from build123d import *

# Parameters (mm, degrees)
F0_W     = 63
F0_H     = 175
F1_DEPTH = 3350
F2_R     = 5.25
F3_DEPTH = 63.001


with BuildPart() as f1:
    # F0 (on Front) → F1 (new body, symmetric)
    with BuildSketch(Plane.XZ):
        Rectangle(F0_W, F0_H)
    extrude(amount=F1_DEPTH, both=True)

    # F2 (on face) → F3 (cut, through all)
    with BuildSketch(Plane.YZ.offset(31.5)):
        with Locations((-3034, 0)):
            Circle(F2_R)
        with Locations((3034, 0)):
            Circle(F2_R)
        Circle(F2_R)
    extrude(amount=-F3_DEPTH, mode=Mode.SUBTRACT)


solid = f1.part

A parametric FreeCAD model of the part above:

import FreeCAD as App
import Part
import Sketcher

V = App.Vector
Q = App.Units.Quantity


def add_polygon(sketch, points):
    """Adds a closed chain of lines whose ends are joined by coincident constraints."""
    first, n = sketch.GeometryCount, len(points)
    for a, b in zip(points, points[1:] + points[:1]):
        sketch.addGeometry(Part.LineSegment(App.Vector(*a, 0), App.Vector(*b, 0)), False)
    for i in range(n):
        sketch.addConstraint(Sketcher.Constraint("Coincident", first + i, 2, first + (i + 1) % n, 1))

doc = App.newDocument("Part")
body = doc.addObject("PartDesign::Body", "Body")

sketch1 = body.newObject("Sketcher::SketchObject", "Sketch")
sketch1.AttachmentSupport = (doc.getObject("XZ_Plane"), [""])
sketch1.MapMode = "FlatFace"
add_polygon(sketch1, [(-32, 88), (-32, -88), (32, -88), (32, 88)])
sketch1.addConstraint(Sketcher.Constraint("Vertical", 0))
sketch1.addConstraint(Sketcher.Constraint("Horizontal", 1))
sketch1.addConstraint(Sketcher.Constraint("Vertical", 2))
sketch1.addConstraint(Sketcher.Constraint("Horizontal", 3))
sketch1.addConstraint(Sketcher.Constraint("Symmetric", 0, 2, 2, 2, -1, 1))
sketch1.addConstraint(Sketcher.Constraint("DistanceX", 1, 1, 1, 2, Q("63 mm")))
sketch1.addConstraint(Sketcher.Constraint("DistanceY", 0, 2, 0, 1, Q("175 mm")))
pad1 = body.newObject("PartDesign::Pad", "Pad")
pad1.Profile = sketch1
pad1.Length = 6700
pad1.Midplane = True

sketch2 = body.newObject("Sketcher::SketchObject", "Sketch001")
sketch2.AttachmentSupport = (doc.getObject("YZ_Plane"), [""])
sketch2.MapMode = "FlatFace"
sketch2.AttachmentOffset = App.Placement(V(0, 0, 31.5), App.Rotation())
sketch2.addGeometry(Part.Circle(V(-3034, 0, 0), V(0, 0, 1), 5), False)
sketch2.addGeometry(Part.Circle(V(3034, 0, 0), V(0, 0, 1), 5), False)
sketch2.addGeometry(Part.Circle(V(0, 0, 0), V(0, 0, 1), 5), False)
sketch2.addConstraint(Sketcher.Constraint("Coincident", 2, 3, -1, 1))
sketch2.addConstraint(Sketcher.Constraint("Equal", 0, 1))
sketch2.addConstraint(Sketcher.Constraint("Equal", 1, 2))
sketch2.addConstraint(Sketcher.Constraint("Symmetric", 0, 3, 1, 3, -1, 1))
sketch2.addConstraint(Sketcher.Constraint("PointOnObject", 0, 3, -1))
sketch2.addConstraint(Sketcher.Constraint("Diameter", 0, Q("10.5 mm")))
sketch2.addConstraint(Sketcher.Constraint("DistanceX", 0, 3, -1, 1, Q("3034 mm")))
pocket1 = body.newObject("PartDesign::Pocket", "Pocket")
pocket1.Profile = sketch2
pocket1.Type = "ThroughAll"

doc.recompute()
